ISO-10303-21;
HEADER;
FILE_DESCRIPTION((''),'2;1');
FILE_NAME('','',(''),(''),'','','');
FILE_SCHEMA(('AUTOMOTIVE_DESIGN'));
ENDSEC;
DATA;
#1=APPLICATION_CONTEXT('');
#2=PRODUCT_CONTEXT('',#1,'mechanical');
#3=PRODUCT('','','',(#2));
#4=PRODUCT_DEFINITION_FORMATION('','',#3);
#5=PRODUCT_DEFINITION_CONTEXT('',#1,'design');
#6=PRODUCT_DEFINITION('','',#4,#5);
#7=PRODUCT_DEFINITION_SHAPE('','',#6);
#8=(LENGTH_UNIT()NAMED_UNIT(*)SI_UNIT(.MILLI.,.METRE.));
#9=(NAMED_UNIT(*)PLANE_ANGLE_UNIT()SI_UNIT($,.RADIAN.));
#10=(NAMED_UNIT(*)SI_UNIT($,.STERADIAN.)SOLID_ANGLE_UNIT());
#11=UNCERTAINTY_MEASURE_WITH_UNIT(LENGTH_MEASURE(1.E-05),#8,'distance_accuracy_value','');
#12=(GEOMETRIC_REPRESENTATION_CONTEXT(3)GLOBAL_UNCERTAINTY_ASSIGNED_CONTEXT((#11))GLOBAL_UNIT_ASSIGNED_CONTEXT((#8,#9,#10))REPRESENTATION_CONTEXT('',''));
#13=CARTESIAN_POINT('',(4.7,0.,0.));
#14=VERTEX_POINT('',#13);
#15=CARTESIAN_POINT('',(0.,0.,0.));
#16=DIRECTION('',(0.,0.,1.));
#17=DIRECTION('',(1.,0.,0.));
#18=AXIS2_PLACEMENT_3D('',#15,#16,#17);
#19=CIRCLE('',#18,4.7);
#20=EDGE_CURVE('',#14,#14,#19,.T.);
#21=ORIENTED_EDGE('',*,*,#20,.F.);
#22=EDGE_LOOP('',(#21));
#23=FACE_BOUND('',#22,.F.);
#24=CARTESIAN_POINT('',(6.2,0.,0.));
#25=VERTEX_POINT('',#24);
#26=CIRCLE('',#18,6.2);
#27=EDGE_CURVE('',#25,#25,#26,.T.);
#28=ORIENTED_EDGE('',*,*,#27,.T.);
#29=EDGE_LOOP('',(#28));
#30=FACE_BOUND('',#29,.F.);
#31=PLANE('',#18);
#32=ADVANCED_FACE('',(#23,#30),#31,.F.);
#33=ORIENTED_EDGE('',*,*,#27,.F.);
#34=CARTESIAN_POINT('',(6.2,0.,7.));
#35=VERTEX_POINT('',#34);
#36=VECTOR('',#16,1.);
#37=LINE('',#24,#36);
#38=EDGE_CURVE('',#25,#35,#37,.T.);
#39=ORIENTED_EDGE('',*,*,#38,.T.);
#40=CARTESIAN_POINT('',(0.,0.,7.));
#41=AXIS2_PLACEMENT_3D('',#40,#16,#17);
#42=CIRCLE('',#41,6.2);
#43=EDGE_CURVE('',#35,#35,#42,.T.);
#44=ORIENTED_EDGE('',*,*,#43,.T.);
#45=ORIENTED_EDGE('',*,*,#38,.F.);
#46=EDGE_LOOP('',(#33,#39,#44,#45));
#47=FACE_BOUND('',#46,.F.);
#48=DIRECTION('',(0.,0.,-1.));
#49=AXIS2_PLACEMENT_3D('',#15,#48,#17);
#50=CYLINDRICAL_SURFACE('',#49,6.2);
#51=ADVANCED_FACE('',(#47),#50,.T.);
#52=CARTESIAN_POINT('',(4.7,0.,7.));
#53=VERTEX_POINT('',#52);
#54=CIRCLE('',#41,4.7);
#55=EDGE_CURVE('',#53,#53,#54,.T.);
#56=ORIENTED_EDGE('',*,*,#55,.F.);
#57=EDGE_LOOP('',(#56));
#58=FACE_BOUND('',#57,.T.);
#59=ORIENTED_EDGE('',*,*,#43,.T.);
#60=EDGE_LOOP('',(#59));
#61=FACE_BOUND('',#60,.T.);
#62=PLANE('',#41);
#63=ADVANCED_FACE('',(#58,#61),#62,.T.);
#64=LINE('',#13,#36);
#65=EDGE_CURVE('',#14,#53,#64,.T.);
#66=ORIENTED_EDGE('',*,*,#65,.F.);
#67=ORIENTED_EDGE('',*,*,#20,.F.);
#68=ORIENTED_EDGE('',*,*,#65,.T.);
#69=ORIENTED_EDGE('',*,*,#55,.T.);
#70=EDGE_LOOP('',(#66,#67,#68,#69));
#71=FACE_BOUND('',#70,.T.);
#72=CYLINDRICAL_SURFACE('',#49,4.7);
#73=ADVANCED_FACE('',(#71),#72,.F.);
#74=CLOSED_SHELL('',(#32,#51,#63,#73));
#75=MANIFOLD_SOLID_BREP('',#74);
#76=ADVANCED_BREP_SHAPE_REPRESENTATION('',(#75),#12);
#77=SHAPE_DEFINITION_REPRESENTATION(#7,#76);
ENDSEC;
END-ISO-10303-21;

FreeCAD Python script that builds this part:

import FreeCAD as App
import Part
import Sketcher
Q = App.Units.Quantity

doc = App.newDocument("Part")
body = doc.addObject("PartDesign::Body", "Body")

# Sketch on XY plane
sketch1 = doc.addObject("Sketcher::SketchObject", "Sketch")
body.addObject(sketch1)
sketch1.AttachmentSupport = (doc.XY_Plane, [""])
sketch1.MapMode = "FlatFace"
sketch1.addGeometry([
    Part.Circle(App.Vector(0, 0, 0), App.Vector(0, 0, 1), 6.2),
    Part.Circle(App.Vector(0, 0, 0), App.Vector(0, 0, 1), 4.7),
], False)
sketch1.addConstraint([
    Sketcher.Constraint("Coincident", 0, 3, -1, 1),
    Sketcher.Constraint("Coincident", 1, 3, -1, 1),
    Sketcher.Constraint("Diameter", 0, Q("12.4 mm")),
    Sketcher.Constraint("Diameter", 1, Q("9.4 mm")),
])
pad1 = doc.addObject("PartDesign::Pad", "Pad")
body.addObject(pad1)
pad1.Profile = sketch1
pad1.Length = 7

doc.recompute()
